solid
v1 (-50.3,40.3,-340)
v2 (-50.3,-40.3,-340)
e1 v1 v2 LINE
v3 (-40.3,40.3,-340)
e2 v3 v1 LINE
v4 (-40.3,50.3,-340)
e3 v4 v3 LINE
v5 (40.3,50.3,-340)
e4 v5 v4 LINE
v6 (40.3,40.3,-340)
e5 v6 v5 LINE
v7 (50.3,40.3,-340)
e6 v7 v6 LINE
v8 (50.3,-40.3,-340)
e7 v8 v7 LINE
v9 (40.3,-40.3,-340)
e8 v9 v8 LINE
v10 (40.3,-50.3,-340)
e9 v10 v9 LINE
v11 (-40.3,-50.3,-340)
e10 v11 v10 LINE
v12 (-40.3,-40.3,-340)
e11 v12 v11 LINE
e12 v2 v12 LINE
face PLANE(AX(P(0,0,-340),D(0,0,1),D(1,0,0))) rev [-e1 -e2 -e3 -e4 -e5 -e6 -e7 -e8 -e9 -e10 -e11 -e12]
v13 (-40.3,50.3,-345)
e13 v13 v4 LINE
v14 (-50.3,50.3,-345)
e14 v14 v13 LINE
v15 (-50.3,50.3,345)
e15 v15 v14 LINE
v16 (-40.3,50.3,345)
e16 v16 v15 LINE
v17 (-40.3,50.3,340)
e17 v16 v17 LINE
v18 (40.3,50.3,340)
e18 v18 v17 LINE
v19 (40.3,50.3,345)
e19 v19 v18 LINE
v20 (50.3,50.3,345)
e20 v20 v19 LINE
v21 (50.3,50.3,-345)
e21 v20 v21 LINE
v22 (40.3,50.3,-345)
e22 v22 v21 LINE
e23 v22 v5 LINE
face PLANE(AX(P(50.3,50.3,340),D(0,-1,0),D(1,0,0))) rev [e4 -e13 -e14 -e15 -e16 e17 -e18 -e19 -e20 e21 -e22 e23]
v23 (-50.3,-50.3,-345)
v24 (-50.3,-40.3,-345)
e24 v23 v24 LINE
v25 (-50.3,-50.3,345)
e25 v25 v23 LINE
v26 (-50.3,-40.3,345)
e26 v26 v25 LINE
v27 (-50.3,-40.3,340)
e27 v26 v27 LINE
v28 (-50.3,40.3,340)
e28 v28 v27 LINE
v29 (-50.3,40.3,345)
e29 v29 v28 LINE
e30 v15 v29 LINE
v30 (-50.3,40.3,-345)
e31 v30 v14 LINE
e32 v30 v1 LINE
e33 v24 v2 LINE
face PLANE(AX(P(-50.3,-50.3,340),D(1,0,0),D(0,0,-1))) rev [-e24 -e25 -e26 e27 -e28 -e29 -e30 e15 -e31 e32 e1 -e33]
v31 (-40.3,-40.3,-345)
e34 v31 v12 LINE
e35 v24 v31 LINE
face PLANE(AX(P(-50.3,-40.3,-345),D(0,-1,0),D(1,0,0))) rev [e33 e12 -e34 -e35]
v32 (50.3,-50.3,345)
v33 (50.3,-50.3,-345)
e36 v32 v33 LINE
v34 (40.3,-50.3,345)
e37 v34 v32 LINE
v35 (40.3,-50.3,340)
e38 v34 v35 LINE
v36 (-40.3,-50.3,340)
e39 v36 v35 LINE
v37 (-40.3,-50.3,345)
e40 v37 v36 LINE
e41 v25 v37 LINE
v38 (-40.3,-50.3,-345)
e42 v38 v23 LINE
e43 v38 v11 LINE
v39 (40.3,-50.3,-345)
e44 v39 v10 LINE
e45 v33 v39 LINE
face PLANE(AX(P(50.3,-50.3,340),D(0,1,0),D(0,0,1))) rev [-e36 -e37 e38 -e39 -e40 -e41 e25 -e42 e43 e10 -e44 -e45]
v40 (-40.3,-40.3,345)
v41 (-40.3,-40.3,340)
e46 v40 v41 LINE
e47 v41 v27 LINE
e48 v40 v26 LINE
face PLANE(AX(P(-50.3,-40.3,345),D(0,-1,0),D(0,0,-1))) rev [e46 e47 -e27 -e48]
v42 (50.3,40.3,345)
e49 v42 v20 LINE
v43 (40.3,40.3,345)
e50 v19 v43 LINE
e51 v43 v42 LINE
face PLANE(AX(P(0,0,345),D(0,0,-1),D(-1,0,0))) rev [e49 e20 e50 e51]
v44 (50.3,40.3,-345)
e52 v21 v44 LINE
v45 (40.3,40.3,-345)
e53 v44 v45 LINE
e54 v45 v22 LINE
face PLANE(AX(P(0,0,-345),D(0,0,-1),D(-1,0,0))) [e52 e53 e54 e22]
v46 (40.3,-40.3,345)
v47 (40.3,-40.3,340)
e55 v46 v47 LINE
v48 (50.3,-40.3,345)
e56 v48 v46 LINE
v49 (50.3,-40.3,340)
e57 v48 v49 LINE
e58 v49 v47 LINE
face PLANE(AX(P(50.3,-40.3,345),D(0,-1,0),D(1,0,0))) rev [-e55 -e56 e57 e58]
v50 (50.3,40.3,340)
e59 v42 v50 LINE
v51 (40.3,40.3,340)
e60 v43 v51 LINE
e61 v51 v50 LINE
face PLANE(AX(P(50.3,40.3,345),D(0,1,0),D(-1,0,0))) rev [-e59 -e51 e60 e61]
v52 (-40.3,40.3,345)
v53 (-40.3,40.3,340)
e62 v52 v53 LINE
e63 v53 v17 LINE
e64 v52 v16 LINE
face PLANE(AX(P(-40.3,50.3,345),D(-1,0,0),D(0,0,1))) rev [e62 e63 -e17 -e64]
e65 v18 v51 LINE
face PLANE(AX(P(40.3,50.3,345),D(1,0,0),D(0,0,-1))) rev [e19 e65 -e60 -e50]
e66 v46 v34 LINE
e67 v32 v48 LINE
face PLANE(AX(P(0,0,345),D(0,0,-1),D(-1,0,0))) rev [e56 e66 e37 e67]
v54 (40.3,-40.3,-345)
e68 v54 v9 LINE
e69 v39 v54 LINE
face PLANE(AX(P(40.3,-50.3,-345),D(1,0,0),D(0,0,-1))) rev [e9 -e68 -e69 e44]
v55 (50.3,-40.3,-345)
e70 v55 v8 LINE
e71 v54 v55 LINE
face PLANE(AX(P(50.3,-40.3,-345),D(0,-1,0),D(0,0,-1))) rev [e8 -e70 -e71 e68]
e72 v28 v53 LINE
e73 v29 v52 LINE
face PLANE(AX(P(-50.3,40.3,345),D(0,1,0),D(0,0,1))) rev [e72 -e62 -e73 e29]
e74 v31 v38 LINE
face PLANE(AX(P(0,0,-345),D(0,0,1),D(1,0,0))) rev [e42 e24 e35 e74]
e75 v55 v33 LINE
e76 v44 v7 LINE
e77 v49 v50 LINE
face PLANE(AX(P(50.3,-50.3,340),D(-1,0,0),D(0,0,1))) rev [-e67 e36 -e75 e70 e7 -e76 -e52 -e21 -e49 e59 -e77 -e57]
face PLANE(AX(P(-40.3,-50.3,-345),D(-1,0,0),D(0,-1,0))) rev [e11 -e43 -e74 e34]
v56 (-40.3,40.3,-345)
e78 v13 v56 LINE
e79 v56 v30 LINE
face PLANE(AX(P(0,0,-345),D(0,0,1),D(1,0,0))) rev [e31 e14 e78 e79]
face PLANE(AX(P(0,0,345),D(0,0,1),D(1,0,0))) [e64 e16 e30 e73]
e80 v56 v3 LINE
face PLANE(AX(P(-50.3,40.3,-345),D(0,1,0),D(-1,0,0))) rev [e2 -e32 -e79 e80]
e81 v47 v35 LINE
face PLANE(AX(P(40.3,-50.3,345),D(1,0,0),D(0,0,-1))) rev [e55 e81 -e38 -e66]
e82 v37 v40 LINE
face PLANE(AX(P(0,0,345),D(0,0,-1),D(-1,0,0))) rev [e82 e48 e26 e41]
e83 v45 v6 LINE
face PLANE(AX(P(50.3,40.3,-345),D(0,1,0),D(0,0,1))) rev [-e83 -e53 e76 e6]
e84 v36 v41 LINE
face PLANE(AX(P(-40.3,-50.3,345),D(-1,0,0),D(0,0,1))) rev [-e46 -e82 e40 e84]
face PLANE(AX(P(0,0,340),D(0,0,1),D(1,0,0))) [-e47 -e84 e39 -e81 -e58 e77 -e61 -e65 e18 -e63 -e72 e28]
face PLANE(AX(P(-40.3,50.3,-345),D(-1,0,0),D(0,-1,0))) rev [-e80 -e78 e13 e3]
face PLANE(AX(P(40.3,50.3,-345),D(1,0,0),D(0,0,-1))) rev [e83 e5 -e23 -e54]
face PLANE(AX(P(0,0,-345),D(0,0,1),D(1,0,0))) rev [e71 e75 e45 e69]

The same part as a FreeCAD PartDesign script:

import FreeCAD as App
import Part
import Sketcher

V = App.Vector


def add_polygon(sketch, points):
    """Adds a closed chain of lines whose ends are joined by coincident constraints."""
    first, n = sketch.GeometryCount, len(points)
    for a, b in zip(points, points[1:] + points[:1]):
        sketch.addGeometry(Part.LineSegment(App.Vector(*a, 0), App.Vector(*b, 0)), False)
    for i in range(n):
        sketch.addConstraint(Sketcher.Constraint("Coincident", first + i, 2, first + (i + 1) % n, 1))

doc = App.newDocument("Part")
body = doc.addObject("PartDesign::Body", "Body")

# Sketch on XY plane
sketch1 = body.newObject("Sketcher::SketchObject", "Sketch")
sketch1.AttachmentSupport = (doc.getObject("XY_Plane"), [""])
sketch1.MapMode = "FlatFace"
add_polygon(sketch1, [(-50, 50), (-50, -50), (50, -50), (50, 50)])  # lines 0-3
sketch1.addConstraint([
    Sketcher.Constraint("Vertical", 0),
    Sketcher.Constraint("Horizontal", 1),
    Sketcher.Constraint("Vertical", 2),
    Sketcher.Constraint("Horizontal", 3),
    Sketcher.Constraint("Symmetric", 0, 2, 2, 2, -1, 1),
    Sketcher.Constraint("Equal", 3, 0),
    Sketcher.Constraint("DistanceX", 1, 1, 1, 2, 100.6),
])
pad1 = body.newObject("PartDesign::Pad", "Pad")
pad1.Profile = sketch1
pad1.Length = 680
pad1.Midplane = True

# Sketch on XY plane
sketch2 = body.newObject("Sketcher::SketchObject", "Sketch001")
sketch2.AttachmentSupport = (doc.getObject("XY_Plane"), [""])
sketch2.MapMode = "FlatFace"
sketch2.AttachmentOffset = App.Placement(V(0, 0, 340), App.Rotation())
add_polygon(sketch2, [(-50, 50), (-50, 40), (-40, 40), (-40, 50)])  # lines 0-3
add_polygon(sketch2, [(40, 50), (40, 40), (50, 40), (50, 50)])  # lines 4-7
add_polygon(sketch2, [(40, -40), (40, -50), (50, -50), (50, -40)])  # lines 8-11
add_polygon(sketch2, [(-50, -40), (-50, -50), (-40, -50), (-40, -40)])  # lines 12-15
sketch2.addConstraint([
    Sketcher.Constraint("Vertical", 0),
    Sketcher.Constraint("Horizontal", 1),
    Sketcher.Constraint("Vertical", 2),
    Sketcher.Constraint("Horizontal", 3),
    Sketcher.Constraint("Vertical", 4),
    Sketcher.Constraint("Horizontal", 5),
    Sketcher.Constraint("Vertical", 6),
    Sketcher.Constraint("Horizontal", 7),
    Sketcher.Constraint("Vertical", 8),
    Sketcher.Constraint("Horizontal", 9),
    Sketcher.Constraint("Vertical", 10),
    Sketcher.Constraint("Horizontal", 11),
    Sketcher.Constraint("Vertical", 12),
    Sketcher.Constraint("Horizontal", 13),
    Sketcher.Constraint("Vertical", 14),
    Sketcher.Constraint("Horizontal", 15),
    Sketcher.Constraint("Symmetric", 2, 2, 8, 2, -1, 1),
    Sketcher.Constraint("Symmetric", 0, 2, 10, 2, -1, 1),
    Sketcher.Constraint("Symmetric", 6, 2, 12, 2, -1, 1),
    Sketcher.Constraint("Symmetric", 4, 2, 14, 2, -1, 1),
    Sketcher.Constraint("Symmetric", 1, 2, 4, 2, -2),
    Sketcher.Constraint("Symmetric", 3, 2, 6, 2, -2),
    Sketcher.Constraint("Equal", 15, 0),
    Sketcher.Constraint("DistanceX", 1, 1, 1, 2, 10.0),
    Sketcher.Constraint("DistanceX", 0, 2, -1, 1, 50.3),
    Sketcher.Constraint("DistanceY", -1, 1, 0, 2, 40.3),
])
pad2 = body.newObject("PartDesign::Pad", "Pad001")
pad2.Profile = sketch2
pad2.Length = 5

# Sketch on XY plane
sketch3 = body.newObject("Sketcher::SketchObject", "Sketch002")
sketch3.AttachmentSupport = (doc.getObject("XY_Plane"), [""])
sketch3.MapMode = "FlatFace"
sketch3.AttachmentOffset = App.Placement(V(0, 0, -340), App.Rotation())
add_polygon(sketch3, [(50, 50), (50, 40), (40, 40), (40, 50)])  # lines 0-3
add_polygon(sketch3, [(-40, 50), (-40, 40), (-50, 40), (-50, 50)])  # lines 4-7
add_polygon(sketch3, [(-40, -40), (-40, -50), (-50, -50), (-50, -40)])  # lines 8-11
add_polygon(sketch3, [(50, -40), (50, -50), (40, -50), (40, -40)])  # lines 12-15
sketch3.addConstraint([
    Sketcher.Constraint("Vertical", 0),
    Sketcher.Constraint("Horizontal", 1),
    Sketcher.Constraint("Vertical", 2),
    Sketcher.Constraint("Horizontal", 3),
    Sketcher.Constraint("Vertical", 4),
    Sketcher.Constraint("Horizontal", 5),
    Sketcher.Constraint("Vertical", 6),
    Sketcher.Constraint("Horizontal", 7),
    Sketcher.Constraint("Vertical", 8),
    Sketcher.Constraint("Horizontal", 9),
    Sketcher.Constraint("Vertical", 10),
    Sketcher.Constraint("Horizontal", 11),
    Sketcher.Constraint("Vertical", 12),
    Sketcher.Constraint("Horizontal", 13),
    Sketcher.Constraint("Vertical", 14),
    Sketcher.Constraint("Horizontal", 15),
    Sketcher.Constraint("Symmetric", 2, 2, 8, 2, -1, 1),
    Sketcher.Constraint("Symmetric", 0, 2, 10, 2, -1, 1),
    Sketcher.Constraint("Symmetric", 6, 2, 12, 2, -1, 1),
    Sketcher.Constraint("Symmetric", 4, 2, 14, 2, -1, 1),
    Sketcher.Constraint("Symmetric", 1, 2, 4, 2, -2),
    Sketcher.Constraint("Symmetric", 3, 2, 6, 2, -2),
    Sketcher.Constraint("Equal", 15, 0),
    Sketcher.Constraint("DistanceX", 1, 2, 1, 1, 10.0),
    Sketcher.Constraint("DistanceX", -1, 1, 0, 2, 50.3),
    Sketcher.Constraint("DistanceY", -1, 1, 0, 2, 40.3),
])
pad3 = body.newObject("PartDesign::Pad", "Pad002")
pad3.Profile = sketch3
pad3.Length = 5
pad3.Reversed = True

doc.recompute()
